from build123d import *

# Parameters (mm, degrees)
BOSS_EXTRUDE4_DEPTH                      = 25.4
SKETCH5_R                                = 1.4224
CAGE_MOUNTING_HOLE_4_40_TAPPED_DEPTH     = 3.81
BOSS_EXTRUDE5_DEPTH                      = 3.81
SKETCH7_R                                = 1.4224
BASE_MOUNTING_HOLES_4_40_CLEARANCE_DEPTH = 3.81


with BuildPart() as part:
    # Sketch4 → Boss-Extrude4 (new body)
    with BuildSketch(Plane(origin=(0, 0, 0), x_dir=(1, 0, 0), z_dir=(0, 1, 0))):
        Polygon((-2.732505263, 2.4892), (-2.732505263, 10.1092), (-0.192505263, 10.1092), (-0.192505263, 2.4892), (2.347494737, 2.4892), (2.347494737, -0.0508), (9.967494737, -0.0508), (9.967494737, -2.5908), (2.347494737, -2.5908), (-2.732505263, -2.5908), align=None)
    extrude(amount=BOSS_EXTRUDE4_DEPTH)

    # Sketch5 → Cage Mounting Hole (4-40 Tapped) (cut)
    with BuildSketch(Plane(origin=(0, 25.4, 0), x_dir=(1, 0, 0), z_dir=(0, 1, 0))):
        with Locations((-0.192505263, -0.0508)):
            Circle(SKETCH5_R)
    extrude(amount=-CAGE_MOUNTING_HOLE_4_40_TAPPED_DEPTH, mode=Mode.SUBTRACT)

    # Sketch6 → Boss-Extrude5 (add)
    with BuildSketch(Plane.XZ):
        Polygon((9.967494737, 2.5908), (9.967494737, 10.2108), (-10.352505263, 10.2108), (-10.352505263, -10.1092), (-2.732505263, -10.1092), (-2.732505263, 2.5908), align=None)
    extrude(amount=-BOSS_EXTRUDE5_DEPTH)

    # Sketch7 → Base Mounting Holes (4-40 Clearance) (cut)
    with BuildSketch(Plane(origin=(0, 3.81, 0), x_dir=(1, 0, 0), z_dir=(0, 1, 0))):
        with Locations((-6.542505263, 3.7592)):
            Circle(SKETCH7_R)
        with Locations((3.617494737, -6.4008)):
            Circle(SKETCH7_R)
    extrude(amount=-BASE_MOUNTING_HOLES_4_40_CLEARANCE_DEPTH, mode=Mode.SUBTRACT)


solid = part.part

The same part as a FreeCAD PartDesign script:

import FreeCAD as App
import Part
import Sketcher
Q = App.Units.Quantity


def add_polygon(sketch, points):
    """Adds a closed chain of lines whose ends are joined by coincident constraints."""
    first, n = sketch.GeometryCount, len(points)
    for a, b in zip(points, points[1:] + points[:1]):
        sketch.addGeometry(Part.LineSegment(App.Vector(*a, 0), App.Vector(*b, 0)), False)
    for i in range(n):
        sketch.addConstraint(Sketcher.Constraint("Coincident", first + i, 2, first + (i + 1) % n, 1))

doc = App.newDocument("Part")
body = doc.addObject("PartDesign::Body", "Body")

sketch1 = body.newObject("Sketcher::SketchObject", "Sketch")
sketch1.AttachmentSupport = (doc.getObject("XZ_Plane"), [""])
sketch1.MapMode = "FlatFace"
add_polygon(sketch1, [(-2.7, -10.1), (-2.7, 2.6), (10, 2.6), (10, 0.1), (2.3, 0.1), (2.3, -2.5), (-0.2, -2.5), (-0.2, -10.1)])
sketch1.addConstraint(Sketcher.Constraint("Vertical", 0))
sketch1.addConstraint(Sketcher.Constraint("Horizontal", 1))
sketch1.addConstraint(Sketcher.Constraint("Vertical", 2))
sketch1.addConstraint(Sketcher.Constraint("Horizontal", 3))
sketch1.addConstraint(Sketcher.Constraint("Vertical", 4))
sketch1.addConstraint(Sketcher.Constraint("Horizontal", 5))
sketch1.addConstraint(Sketcher.Constraint("Vertical", 6))
sketch1.addConstraint(Sketcher.Constraint("Horizontal", 7))
sketch1.addConstraint(Sketcher.Constraint("Equal", 5, 7))
sketch1.addConstraint(Sketcher.Constraint("Equal", 1, 0))
sketch1.addConstraint(Sketcher.Constraint("Equal", 7, 2))
sketch1.addConstraint(Sketcher.Constraint("Equal", 2, 4))
sketch1.addConstraint(Sketcher.Constraint("DistanceX", 1, 1, 1, 2, Q("0.5 in")))
sketch1.addConstraint(Sketcher.Constraint("DistanceX", 3, 2, 3, 1, Q("0.3 in")))
sketch1.addConstraint(Sketcher.Constraint("DistanceY", -1, 1, 0, 2, Q("0.102 in")))
sketch1.addConstraint(Sketcher.Constraint("DistanceX", 0, 2, -1, 1, Q("2.732505 mm")))
pad1 = body.newObject("PartDesign::Pad", "Pad")
pad1.Profile = sketch1
pad1.Length = Q("1 in")
pad1.Reversed = True

sketch2 = body.newObject("Sketcher::SketchObject", "Sketch001")
sketch2.AttachmentSupport = (doc.getObject("XZ_Plane"), [""])
sketch2.MapMode = "FlatFace"
sketch2.AttachmentOffset = App.Placement(App.Vector(0, 0, -1 * 25.4), App.Rotation())
sketch2.addGeometry(Part.Circle(App.Vector(-0.2, 0.1, 0), App.Vector(0, 0, 1), 1.4), False)
sketch2.addConstraint(Sketcher.Constraint("Diameter", 0, Q("0.112 in")))
sketch2.addConstraint(Sketcher.Constraint("DistanceY", -1, 1, 0, 3, Q("0.002 in")))
sketch2.addConstraint(Sketcher.Constraint("DistanceX", 0, 3, -1, 1, Q("0.192505 mm")))
pocket1 = body.newObject("PartDesign::Pocket", "Pocket")
pocket1.Profile = sketch2
pocket1.Length = Q("0.15 in")
pocket1.Reversed = True

sketch3 = body.newObject("Sketcher::SketchObject", "Sketch002")
sketch3.AttachmentSupport = (doc.getObject("XZ_Plane"), [""])
sketch3.MapMode = "FlatFace"
add_polygon(sketch3, [(10, 3), (10, 10), (-10, 10), (-10, -10), (-3, -10), (-3, 3)])
sketch3.addConstraint(Sketcher.Constraint("Vertical", 0))
sketch3.addConstraint(Sketcher.Constraint("Horizontal", 1))
sketch3.addConstraint(Sketcher.Constraint("Vertical", 2))
sketch3.addConstraint(Sketcher.Constraint("Horizontal", 3))
sketch3.addConstraint(Sketcher.Constraint("Vertical", 4))
sketch3.addConstraint(Sketcher.Constraint("Horizontal", 5))
sketch3.addConstraint(Sketcher.Constraint("Equal", 3, 0))
sketch3.addConstraint(Sketcher.Constraint("Equal", 1, 2))
sketch3.addConstraint(Sketcher.Constraint("DistanceX", 1, 2, 1, 1, Q("0.8 in")))
sketch3.addConstraint(Sketcher.Constraint("DistanceX", 3, 1, 3, 2, Q("0.3 in")))
sketch3.addConstraint(Sketcher.Constraint("DistanceY", -1, 1, 0, 2, Q("0.402 in")))
sketch3.addConstraint(Sketcher.Constraint("DistanceX", -1, 1, 0, 2, Q("9.967495 mm")))
pad2 = body.newObject("PartDesign::Pad", "Pad001")
pad2.Profile = sketch3
pad2.Length = Q("0.15 in")
pad2.Reversed = True

sketch4 = body.newObject("Sketcher::SketchObject", "Sketch003")
sketch4.AttachmentSupport = (doc.getObject("XZ_Plane"), [""])
sketch4.MapMode = "FlatFace"
sketch4.AttachmentOffset = App.Placement(App.Vector(0, 0, -0.15 * 25.4), App.Rotation())
sketch4.addGeometry(Part.Circle(App.Vector(-6.5, -3.8, 0), App.Vector(0, 0, 1), 1.4), False)
sketch4.addGeometry(Part.Circle(App.Vector(3.6, 6.4, 0), App.Vector(0, 0, 1), 1.4), False)
sketch4.addConstraint(Sketcher.Constraint("Equal", 0, 1))
sketch4.addConstraint(Sketcher.Constraint("Diameter", 0, Q("0.112 in")))
sketch4.addConstraint(Sketcher.Constraint("DistanceX", 0, 3, 1, 3, Q("0.4 in")))
sketch4.addConstraint(Sketcher.Constraint("DistanceY", 0, 3, 1, 3, Q("0.4 in")))
sketch4.addConstraint(Sketcher.Constraint("DistanceY", 0, 3, -1, 1, Q("0.148 in")))
sketch4.addConstraint(Sketcher.Constraint("DistanceX", 0, 3, -1, 1, Q("6.542505 mm")))
pocket2 = body.newObject("PartDesign::Pocket", "Pocket001")
pocket2.Profile = sketch4
pocket2.Length = Q("0.15 in")
pocket2.Reversed = True

doc.recompute()
